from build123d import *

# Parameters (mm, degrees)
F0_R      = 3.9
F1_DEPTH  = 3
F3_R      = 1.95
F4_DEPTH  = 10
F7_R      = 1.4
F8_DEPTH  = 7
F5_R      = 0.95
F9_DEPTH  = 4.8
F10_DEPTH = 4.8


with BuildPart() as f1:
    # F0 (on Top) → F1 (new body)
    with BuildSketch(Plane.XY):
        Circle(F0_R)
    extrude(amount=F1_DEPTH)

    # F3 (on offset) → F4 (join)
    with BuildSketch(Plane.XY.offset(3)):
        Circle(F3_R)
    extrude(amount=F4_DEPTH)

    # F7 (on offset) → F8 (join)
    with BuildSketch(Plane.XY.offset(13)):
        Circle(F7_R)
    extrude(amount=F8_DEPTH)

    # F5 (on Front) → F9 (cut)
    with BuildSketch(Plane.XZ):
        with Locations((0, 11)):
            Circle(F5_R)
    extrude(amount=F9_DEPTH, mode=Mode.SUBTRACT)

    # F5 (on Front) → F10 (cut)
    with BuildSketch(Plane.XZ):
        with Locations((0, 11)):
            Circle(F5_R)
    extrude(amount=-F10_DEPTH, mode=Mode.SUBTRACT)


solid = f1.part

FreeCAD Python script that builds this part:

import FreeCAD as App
import Part
import Sketcher
from FreeCAD import Vector

doc = App.newDocument("Part")
body = doc.addObject("PartDesign::Body", "Body")

# Sketch on XY plane
sketch1 = body.newObject("Sketcher::SketchObject", "Sketch")
sketch1.AttachmentSupport = (doc.getObject("XY_Plane"), [""])
sketch1.MapMode = "FlatFace"
sketch1.addGeometry(Part.Circle(Vector(0, 0, 0), Vector(0, 0, 1), 3.9), False)
sketch1.addConstraint(Sketcher.Constraint("Coincident", 0, 3, -1, 1))
sketch1.addConstraint(Sketcher.Constraint("Diameter", 0, 7.8))
pad1 = body.newObject("PartDesign::Pad", "Pad")
pad1.Profile = sketch1
pad1.Length = 3

# Sketch on XY plane
sketch2 = body.newObject("Sketcher::SketchObject", "Sketch001")
sketch2.AttachmentSupport = (doc.getObject("XY_Plane"), [""])
sketch2.MapMode = "FlatFace"
sketch2.AttachmentOffset = App.Placement(Vector(0, 0, 3), App.Rotation())
sketch2.addGeometry(Part.Circle(Vector(0, 0, 0), Vector(0, 0, 1), 1.9), False)
sketch2.addConstraint(Sketcher.Constraint("Coincident", 0, 3, -1, 1))
sketch2.addConstraint(Sketcher.Constraint("Diameter", 0, 3.9))
pad2 = body.newObject("PartDesign::Pad", "Pad001")
pad2.Profile = sketch2
pad2.Length = 10

# Sketch on XY plane
sketch3 = body.newObject("Sketcher::SketchObject", "Sketch002")
sketch3.AttachmentSupport = (doc.getObject("XY_Plane"), [""])
sketch3.MapMode = "FlatFace"
sketch3.AttachmentOffset = App.Placement(Vector(0, 0, 13), App.Rotation())
sketch3.addGeometry(Part.Circle(Vector(0, 0, 0), Vector(0, 0, 1), 1.4), False)
sketch3.addConstraint(Sketcher.Constraint("Coincident", 0, 3, -1, 1))
sketch3.addConstraint(Sketcher.Constraint("Diameter", 0, 2.8))
pad3 = body.newObject("PartDesign::Pad", "Pad002")
pad3.Profile = sketch3
pad3.Length = 7

# Sketch on XZ plane
sketch4 = body.newObject("Sketcher::SketchObject", "Sketch003")
sketch4.AttachmentSupport = (doc.getObject("XZ_Plane"), [""])
sketch4.MapMode = "FlatFace"
sketch4.addGeometry(Part.Circle(Vector(0, 11, 0), Vector(0, 0, 1), 0.9), False)
sketch4.addConstraint(Sketcher.Constraint("PointOnObject", 0, 3, -2))
sketch4.addConstraint(Sketcher.Constraint("Diameter", 0, 1.9))
sketch4.addConstraint(Sketcher.Constraint("DistanceY", -1, 1, 0, 3, 11.0))
pocket1 = body.newObject("PartDesign::Pocket", "Pocket")
pocket1.Profile = sketch4
pocket1.Length = 4.8
pocket1.Reversed = True

# Sketch on XZ plane
sketch5 = body.newObject("Sketcher::SketchObject", "Sketch004")
sketch5.AttachmentSupport = (doc.getObject("XZ_Plane"), [""])
sketch5.MapMode = "FlatFace"
sketch5.addGeometry(Part.Circle(Vector(0, 11, 0), Vector(0, 0, 1), 0.9), False)
sketch5.addConstraint(Sketcher.Constraint("PointOnObject", 0, 3, -2))
sketch5.addConstraint(Sketcher.Constraint("Diameter", 0, 1.9))
sketch5.addConstraint(Sketcher.Constraint("DistanceY", -1, 1, 0, 3, 11.0))
pocket2 = body.newObject("PartDesign::Pocket", "Pocket001")
pocket2.Profile = sketch5
pocket2.Length = 4.8

doc.recompute()
